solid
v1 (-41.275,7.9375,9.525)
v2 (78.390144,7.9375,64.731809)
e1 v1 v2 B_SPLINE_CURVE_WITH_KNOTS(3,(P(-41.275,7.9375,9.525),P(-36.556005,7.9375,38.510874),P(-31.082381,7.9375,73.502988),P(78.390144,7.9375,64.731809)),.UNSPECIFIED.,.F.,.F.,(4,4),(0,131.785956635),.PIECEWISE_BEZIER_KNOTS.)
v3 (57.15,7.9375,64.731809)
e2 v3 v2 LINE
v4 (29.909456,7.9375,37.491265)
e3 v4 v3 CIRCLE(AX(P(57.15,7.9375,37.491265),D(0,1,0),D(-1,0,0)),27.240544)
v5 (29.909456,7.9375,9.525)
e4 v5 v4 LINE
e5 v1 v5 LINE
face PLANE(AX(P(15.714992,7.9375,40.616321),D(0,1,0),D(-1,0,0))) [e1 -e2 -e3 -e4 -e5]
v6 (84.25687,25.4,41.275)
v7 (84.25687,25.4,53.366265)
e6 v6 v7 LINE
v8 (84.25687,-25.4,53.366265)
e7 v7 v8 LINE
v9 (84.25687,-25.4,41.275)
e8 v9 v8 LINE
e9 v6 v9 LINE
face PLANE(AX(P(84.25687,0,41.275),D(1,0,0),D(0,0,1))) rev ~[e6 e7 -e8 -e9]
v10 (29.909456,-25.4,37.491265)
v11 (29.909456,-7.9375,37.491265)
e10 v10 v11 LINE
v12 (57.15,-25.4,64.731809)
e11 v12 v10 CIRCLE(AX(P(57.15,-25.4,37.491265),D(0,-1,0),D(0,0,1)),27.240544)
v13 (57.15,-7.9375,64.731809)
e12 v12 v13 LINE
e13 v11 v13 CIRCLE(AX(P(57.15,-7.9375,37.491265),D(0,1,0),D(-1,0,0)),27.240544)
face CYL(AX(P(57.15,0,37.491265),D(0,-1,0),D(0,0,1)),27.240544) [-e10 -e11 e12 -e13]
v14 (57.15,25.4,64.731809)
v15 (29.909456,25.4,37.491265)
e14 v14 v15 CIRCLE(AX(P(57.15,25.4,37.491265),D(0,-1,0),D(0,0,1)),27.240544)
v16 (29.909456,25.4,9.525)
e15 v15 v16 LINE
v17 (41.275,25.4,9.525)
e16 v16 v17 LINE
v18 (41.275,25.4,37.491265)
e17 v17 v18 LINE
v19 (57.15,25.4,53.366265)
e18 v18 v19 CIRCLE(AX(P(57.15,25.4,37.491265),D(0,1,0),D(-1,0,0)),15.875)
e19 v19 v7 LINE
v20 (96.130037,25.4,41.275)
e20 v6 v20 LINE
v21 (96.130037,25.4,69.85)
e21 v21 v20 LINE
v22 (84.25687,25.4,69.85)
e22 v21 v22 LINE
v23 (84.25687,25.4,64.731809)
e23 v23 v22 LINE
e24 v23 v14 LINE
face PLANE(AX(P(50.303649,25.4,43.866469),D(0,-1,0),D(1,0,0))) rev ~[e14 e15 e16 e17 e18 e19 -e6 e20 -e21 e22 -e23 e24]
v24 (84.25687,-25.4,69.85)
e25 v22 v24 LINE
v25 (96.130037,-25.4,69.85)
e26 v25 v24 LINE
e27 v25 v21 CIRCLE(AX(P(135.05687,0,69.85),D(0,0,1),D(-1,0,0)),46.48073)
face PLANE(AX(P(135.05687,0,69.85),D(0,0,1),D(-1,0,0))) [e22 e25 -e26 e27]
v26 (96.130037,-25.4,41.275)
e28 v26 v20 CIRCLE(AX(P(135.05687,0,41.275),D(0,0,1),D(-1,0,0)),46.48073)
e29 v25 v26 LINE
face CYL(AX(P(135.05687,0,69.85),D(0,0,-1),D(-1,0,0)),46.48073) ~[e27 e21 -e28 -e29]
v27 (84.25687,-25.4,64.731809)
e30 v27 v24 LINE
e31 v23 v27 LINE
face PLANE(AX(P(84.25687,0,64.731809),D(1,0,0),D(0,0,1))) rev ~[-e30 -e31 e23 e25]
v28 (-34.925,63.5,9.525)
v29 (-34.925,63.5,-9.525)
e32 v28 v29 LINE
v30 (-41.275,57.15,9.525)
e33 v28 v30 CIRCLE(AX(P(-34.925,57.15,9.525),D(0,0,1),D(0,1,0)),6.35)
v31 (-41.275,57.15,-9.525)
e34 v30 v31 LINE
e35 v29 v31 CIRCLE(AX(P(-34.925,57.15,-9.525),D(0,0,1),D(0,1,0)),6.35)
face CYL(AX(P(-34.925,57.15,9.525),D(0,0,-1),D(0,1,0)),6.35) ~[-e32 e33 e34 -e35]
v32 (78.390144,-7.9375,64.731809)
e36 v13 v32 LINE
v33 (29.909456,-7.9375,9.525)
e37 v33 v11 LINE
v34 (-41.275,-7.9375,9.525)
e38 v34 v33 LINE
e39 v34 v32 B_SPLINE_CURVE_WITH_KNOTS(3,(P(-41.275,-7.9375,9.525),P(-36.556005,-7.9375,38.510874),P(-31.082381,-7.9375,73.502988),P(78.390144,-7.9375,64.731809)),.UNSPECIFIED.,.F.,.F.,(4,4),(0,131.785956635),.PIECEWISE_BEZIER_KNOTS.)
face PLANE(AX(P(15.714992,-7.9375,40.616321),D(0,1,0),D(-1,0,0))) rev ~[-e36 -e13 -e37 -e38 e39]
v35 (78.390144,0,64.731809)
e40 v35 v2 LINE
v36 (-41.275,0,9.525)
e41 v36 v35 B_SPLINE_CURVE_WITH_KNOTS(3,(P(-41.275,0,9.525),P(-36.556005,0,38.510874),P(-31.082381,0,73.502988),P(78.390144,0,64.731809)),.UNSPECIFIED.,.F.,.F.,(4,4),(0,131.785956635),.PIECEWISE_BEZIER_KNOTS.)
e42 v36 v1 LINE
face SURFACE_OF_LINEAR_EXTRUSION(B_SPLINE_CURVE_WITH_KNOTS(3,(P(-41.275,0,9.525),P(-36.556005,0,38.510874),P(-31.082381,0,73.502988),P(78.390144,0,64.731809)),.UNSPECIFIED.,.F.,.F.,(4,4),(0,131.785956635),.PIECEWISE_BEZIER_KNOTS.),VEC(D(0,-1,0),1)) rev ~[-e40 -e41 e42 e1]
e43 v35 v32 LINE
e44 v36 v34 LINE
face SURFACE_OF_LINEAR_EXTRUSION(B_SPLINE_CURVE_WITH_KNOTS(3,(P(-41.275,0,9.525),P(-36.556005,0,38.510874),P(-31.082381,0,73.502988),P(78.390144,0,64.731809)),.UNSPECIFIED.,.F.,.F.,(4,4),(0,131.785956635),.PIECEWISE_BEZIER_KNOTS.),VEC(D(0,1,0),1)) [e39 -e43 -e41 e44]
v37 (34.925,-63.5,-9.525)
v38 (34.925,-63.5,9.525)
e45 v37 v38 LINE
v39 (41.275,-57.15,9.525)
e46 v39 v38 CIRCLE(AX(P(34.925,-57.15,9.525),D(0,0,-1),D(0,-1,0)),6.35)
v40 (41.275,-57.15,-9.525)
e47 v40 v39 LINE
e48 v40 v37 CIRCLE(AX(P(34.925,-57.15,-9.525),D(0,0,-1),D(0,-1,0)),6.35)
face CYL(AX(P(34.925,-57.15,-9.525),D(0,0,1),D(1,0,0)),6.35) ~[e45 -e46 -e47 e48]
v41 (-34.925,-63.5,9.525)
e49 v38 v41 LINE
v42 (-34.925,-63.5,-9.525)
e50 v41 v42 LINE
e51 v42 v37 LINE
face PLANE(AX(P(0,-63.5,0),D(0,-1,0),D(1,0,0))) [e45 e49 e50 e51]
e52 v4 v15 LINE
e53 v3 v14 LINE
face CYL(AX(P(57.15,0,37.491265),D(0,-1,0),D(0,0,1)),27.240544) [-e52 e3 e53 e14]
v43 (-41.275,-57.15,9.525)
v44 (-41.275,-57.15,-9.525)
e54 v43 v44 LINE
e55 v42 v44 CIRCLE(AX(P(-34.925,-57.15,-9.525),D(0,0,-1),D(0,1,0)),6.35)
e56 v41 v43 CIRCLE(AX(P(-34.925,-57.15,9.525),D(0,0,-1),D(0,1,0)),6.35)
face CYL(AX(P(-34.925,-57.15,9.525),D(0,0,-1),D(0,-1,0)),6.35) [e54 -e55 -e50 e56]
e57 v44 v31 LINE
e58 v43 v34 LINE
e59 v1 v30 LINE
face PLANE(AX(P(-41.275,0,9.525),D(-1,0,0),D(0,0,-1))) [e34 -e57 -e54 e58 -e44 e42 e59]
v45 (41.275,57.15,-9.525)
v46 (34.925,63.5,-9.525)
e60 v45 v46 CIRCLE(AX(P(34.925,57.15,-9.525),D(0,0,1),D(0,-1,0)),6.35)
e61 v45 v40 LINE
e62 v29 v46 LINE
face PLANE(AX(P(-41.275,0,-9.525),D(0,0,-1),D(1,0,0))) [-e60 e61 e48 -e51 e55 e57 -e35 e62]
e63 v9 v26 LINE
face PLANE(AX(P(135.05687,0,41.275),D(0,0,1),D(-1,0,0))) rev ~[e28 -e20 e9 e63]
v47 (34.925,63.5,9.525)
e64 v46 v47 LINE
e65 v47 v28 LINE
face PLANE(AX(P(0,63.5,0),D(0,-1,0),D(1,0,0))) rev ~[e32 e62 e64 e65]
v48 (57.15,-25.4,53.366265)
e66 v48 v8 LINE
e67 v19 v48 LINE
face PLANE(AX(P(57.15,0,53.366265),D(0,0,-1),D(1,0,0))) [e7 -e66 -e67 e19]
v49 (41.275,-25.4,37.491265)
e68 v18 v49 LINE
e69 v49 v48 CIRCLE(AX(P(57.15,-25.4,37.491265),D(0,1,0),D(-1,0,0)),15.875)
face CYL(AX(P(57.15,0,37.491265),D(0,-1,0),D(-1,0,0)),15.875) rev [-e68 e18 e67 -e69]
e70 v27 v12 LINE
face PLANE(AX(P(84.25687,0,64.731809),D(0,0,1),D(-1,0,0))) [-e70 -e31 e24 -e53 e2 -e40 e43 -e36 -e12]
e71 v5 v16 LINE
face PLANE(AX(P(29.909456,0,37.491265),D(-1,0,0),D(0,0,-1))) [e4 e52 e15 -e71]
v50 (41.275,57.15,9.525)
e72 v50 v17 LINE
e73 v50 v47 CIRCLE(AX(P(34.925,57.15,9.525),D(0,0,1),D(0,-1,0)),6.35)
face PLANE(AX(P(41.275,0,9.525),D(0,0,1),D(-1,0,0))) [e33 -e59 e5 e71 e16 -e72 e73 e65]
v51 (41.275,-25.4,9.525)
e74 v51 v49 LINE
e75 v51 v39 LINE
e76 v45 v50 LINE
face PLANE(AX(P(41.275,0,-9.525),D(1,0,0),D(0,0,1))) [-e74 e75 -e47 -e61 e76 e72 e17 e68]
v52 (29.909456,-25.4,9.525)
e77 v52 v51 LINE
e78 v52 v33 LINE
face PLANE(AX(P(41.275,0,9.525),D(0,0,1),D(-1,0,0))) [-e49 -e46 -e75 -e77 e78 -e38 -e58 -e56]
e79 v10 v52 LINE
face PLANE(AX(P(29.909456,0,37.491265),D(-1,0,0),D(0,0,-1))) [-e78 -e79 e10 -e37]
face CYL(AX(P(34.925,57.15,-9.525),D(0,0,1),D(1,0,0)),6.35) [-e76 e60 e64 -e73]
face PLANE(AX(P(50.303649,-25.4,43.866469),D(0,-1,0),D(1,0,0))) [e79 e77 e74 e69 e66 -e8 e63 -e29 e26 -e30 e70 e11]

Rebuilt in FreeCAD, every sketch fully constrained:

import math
import FreeCAD as App
import Part
import Sketcher
from FreeCAD import Vector
Q = App.Units.Quantity


def edges_at(feature, points):
    """Names of the edges that pass closest to the given points."""
    edges = feature.Shape.Edges
    near = lambda p: min(range(len(edges)), key=lambda i: edges[i].distToShape(Part.Vertex(*p))[0])
    return sorted({f"Edge{near(p) + 1}" for p in points})

doc = App.newDocument("Part")
body = doc.addObject("PartDesign::Body", "Body")

# Sketch on XZ plane
sketch1 = body.newObject("Sketcher::SketchObject", "Sketch")
sketch1.AttachmentSupport = (doc.getObject("XZ_Plane"), [""])
sketch1.MapMode = "FlatFace"
sketch1.addGeometry([
    Part.LineSegment(Vector(-41, -10, 0), Vector(41, -10, 0)),
    Part.LineSegment(Vector(41, -10, 0), Vector(41, 10, 0)),
    Part.LineSegment(Vector(41, 10, 0), Vector(-41, 10, 0)),
    Part.LineSegment(Vector(-41, 10, 0), Vector(-41, -10, 0)),
], False)
sketch1.addConstraint([
    Sketcher.Constraint("Coincident", 0, 2, 1, 1),
    Sketcher.Constraint("Coincident", 1, 2, 2, 1),
    Sketcher.Constraint("Coincident", 2, 2, 3, 1),
    Sketcher.Constraint("Coincident", 3, 2, 0, 1),
    Sketcher.Constraint("Horizontal", 0),
    Sketcher.Constraint("Vertical", 1),
    Sketcher.Constraint("Horizontal", 2),
    Sketcher.Constraint("Vertical", 3),
    Sketcher.Constraint("Symmetric", 0, 2, 2, 2, -1, 1),
    Sketcher.Constraint("DistanceX", 0, 1, 0, 2, Q("3.25 in")),
    Sketcher.Constraint("DistanceY", 1, 1, 1, 2, Q("0.75 in")),
])
pad1 = body.newObject("PartDesign::Pad", "Pad")
pad1.Profile = sketch1
pad1.Length = Q("5 in")
pad1.Midplane = True

# Sketch on XZ plane
sketch2 = body.newObject("Sketcher::SketchObject", "Sketch001")
sketch2.AttachmentSupport = (doc.getObject("XZ_Plane"), [""])
sketch2.MapMode = "FlatFace"
sketch2.addGeometry([
    Part.LineSegment(Vector(30, 10, 0), Vector(41, 10, 0)),  # 0
    Part.LineSegment(Vector(41, 10, 0), Vector(41, 37, 0)),  # 1
    Part.ArcOfCircle(Part.Circle(Vector(57, 37, 0), Vector(0, 0, 1), 16), math.radians(90), math.radians(180)),  # 2
    Part.LineSegment(Vector(57, 53, 0), Vector(84, 53, 0)),  # 3
    Part.LineSegment(Vector(84, 53, 0), Vector(84, 41, 0)),  # 4
    Part.LineSegment(Vector(84, 41, 0), Vector(135, 41, 0)),  # 5
    Part.LineSegment(Vector(135, 41, 0), Vector(135, 70, 0)),  # 6
    Part.LineSegment(Vector(135, 70, 0), Vector(84, 70, 0)),  # 7
    Part.LineSegment(Vector(84, 70, 0), Vector(84, 65, 0)),  # 8
    Part.LineSegment(Vector(84, 65, 0), Vector(57, 65, 0)),  # 9
    Part.ArcOfCircle(Part.Circle(Vector(57, 37, 0), Vector(0, 0, 1), 27), math.radians(90), math.radians(180)),  # 10
    Part.LineSegment(Vector(30, 37, 0), Vector(30, 10, 0)),  # 11
], False)
sketch2.addConstraint([
    Sketcher.Constraint("Coincident", 0, 2, 1, 1),
    Sketcher.Constraint("Tangent", 1, 2, 2, 2),
    Sketcher.Constraint("Tangent", 2, 1, 3, 1),
    Sketcher.Constraint("Coincident", 3, 2, 4, 1),
    Sketcher.Constraint("Coincident", 4, 2, 5, 1),
    Sketcher.Constraint("Coincident", 5, 2, 6, 1),
    Sketcher.Constraint("Coincident", 6, 2, 7, 1),
    Sketcher.Constraint("Coincident", 7, 2, 8, 1),
    Sketcher.Constraint("Coincident", 8, 2, 9, 1),
    Sketcher.Constraint("Tangent", 9, 2, 10, 1),
    Sketcher.Constraint("Tangent", 10, 2, 11, 1),
    Sketcher.Constraint("Coincident", 11, 2, 0, 1),
    Sketcher.Constraint("Horizontal", 0),
    Sketcher.Constraint("Vertical", 1),
    Sketcher.Constraint("Horizontal", 3),
    Sketcher.Constraint("Vertical", 4),
    Sketcher.Constraint("Horizontal", 5),
    Sketcher.Constraint("Vertical", 6),
    Sketcher.Constraint("Horizontal", 7),
    Sketcher.Constraint("Vertical", 8),
    Sketcher.Constraint("Horizontal", 9),
    Sketcher.Constraint("Vertical", 11),
    Sketcher.Constraint("Coincident", 10, 3, 2, 3),
    Sketcher.Constraint("Vertical", 4, 2, 7, 2),
    Sketcher.Constraint("DistanceX", 5, 1, 5, 2, Q("2 in")),
    Sketcher.Constraint("Radius", 2, Q("0.625 in")),
    Sketcher.Constraint("DistanceY", 6, 1, 6, 2, Q("1.125 in")),
    Sketcher.Constraint("DistanceX", -1, 1, 2, 3, Q("2.25 in")),
    Sketcher.Constraint("DistanceY", -1, 1, 6, 2, Q("2.75 in")),
    Sketcher.Constraint("DistanceY", -1, 1, 0, 2, Q("0.375 in")),
    Sketcher.Constraint("Radius", 10, 27.240544),
    Sketcher.Constraint("DistanceX", 3, 1, 3, 2, 27.10687),
    Sketcher.Constraint("DistanceY", 8, 2, 8, 1, 5.118191),
])
pad2 = body.newObject("PartDesign::Pad", "Pad001")
pad2.Profile = sketch2
pad2.Length = Q("2 in")
pad2.Midplane = True

# Sketch on XZ plane
sketch3 = body.newObject("Sketcher::SketchObject", "Sketch002")
sketch3.AttachmentSupport = (doc.getObject("XZ_Plane"), [""])
sketch3.MapMode = "FlatFace"
sketch3.addGeometry([
    Part.BSplineCurve([Vector(-41.275, 9.525, 0), Vector(-36.556005, 38.510874, 0), Vector(-31.082381, 73.502988, 0), Vector(78.390144, 64.731809, 0)], [4, 4], [0, 131.785956635], False, 3, [1, 1, 1, 1], False),  # 0
    Part.LineSegment(Vector(-41.275, 9.525, 0), Vector(29.909456, 9.525, 0)),  # 1
    Part.LineSegment(Vector(29.909456, 9.525, 0), Vector(29.909456, 37.491265, 0)),  # 2
    Part.ArcOfCircle(Part.Circle(Vector(57.15, 37.491265, 0), Vector(0, 0, 1), 27.240544), math.radians(90), math.radians(180)),  # 3
    Part.LineSegment(Vector(57.15, 64.731809, 0), Vector(78.390144, 64.731809, 0)),  # 4
], False)
sketch3.addConstraint([
    Sketcher.Constraint("Block", 0),
    Sketcher.Constraint("Coincident", 0, 1, 1, 1),
    Sketcher.Constraint("Coincident", 1, 2, 2, 1),
    Sketcher.Constraint("Tangent", 2, 2, 3, 2),
    Sketcher.Constraint("Tangent", 3, 1, 4, 1),
    Sketcher.Constraint("Coincident", 4, 2, 0, 2),
    Sketcher.Constraint("Horizontal", 1),
    Sketcher.Constraint("Vertical", 2),
    Sketcher.Constraint("Horizontal", 4),
    Sketcher.Constraint("DistanceX", -1, 1, 3, 3, Q("2.25 in")),
    Sketcher.Constraint("Radius", 3, 27.240544),
])
pad3 = body.newObject("PartDesign::Pad", "Pad002")
pad3.Profile = sketch3
pad3.Length = Q("0.625 in")
pad3.Midplane = True

# Sketch on XZ plane
sketch4 = body.newObject("Sketcher::SketchObject", "Sketch003")
sketch4.AttachmentSupport = (doc.getObject("XZ_Plane"), [""])
sketch4.MapMode = "FlatFace"
sketch4.addGeometry([
    Part.LineSegment(Vector(89, 70, 0), Vector(89, 41, 0)),
    Part.LineSegment(Vector(89, 41, 0), Vector(135, 41, 0)),
    Part.LineSegment(Vector(135, 41, 0), Vector(135, 70, 0)),
    Part.LineSegment(Vector(135, 70, 0), Vector(89, 70, 0)),
], False)
sketch4.addGeometry(Part.LineSegment(Vector(135, 41, 0), Vector(135, 70, 0)), True)  # axis
sketch4.addConstraint([
    Sketcher.Constraint("Coincident", 0, 2, 1, 1),
    Sketcher.Constraint("Coincident", 1, 2, 2, 1),
    Sketcher.Constraint("Coincident", 2, 2, 3, 1),
    Sketcher.Constraint("Coincident", 3, 2, 0, 1),
    Sketcher.Constraint("Vertical", 0),
    Sketcher.Constraint("Horizontal", 1),
    Sketcher.Constraint("Vertical", 2),
    Sketcher.Constraint("Horizontal", 3),
    Sketcher.Constraint("Vertical", 4),
    Sketcher.Constraint("Coincident", 4, 1, 1, 2),
    Sketcher.Constraint("Horizontal", 3, 2, 4, 2),
    Sketcher.Constraint("DistanceY", 0, 2, 0, 1, Q("1.125 in")),
    Sketcher.Constraint("DistanceY", -1, 1, 2, 2, Q("2.75 in")),
    Sketcher.Constraint("DistanceX", 1, 1, 1, 2, 46.48073),
    Sketcher.Constraint("DistanceX", -1, 1, 0, 2, 88.576139),
])
revolution = body.newObject("PartDesign::Revolution", "Revolution")
revolution.Profile = sketch4
revolution.ReferenceAxis = (sketch4, ["Axis0"])
revolution.Angle = 360
doc.recompute()

fillet = body.newObject("PartDesign::Fillet", "Fillet")
fillet.Base = (revolution, edges_at(revolution, [
    (41.275, -63.5, 0),
    (-41.275, -63.5, 0),
    (41.275, 63.5, 0),
    (-41.275, 63.5, 0),
]))
fillet.Radius = Q("0.25 in")

doc.recompute()
